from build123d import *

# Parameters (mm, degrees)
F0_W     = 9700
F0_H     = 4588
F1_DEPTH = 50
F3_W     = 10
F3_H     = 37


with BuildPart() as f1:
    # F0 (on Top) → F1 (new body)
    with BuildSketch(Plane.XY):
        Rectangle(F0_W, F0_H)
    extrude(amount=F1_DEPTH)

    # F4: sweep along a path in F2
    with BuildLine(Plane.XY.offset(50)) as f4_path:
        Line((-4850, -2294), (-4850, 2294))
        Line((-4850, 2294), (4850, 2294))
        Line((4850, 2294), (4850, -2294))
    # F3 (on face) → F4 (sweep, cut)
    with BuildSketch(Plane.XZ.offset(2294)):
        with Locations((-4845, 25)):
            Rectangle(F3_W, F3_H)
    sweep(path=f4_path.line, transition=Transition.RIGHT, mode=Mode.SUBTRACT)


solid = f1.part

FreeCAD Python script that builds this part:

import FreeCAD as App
import Part
import Sketcher

V = App.Vector
Q = App.Units.Quantity


def add_polygon(sketch, points):
    """Adds a closed chain of lines whose ends are joined by coincident constraints."""
    first, n = sketch.GeometryCount, len(points)
    for a, b in zip(points, points[1:] + points[:1]):
        sketch.addGeometry(Part.LineSegment(App.Vector(*a, 0), App.Vector(*b, 0)), False)
    for i in range(n):
        sketch.addConstraint(Sketcher.Constraint("Coincident", first + i, 2, first + (i + 1) % n, 1))

doc = App.newDocument("Part")
params = doc.addObject("Spreadsheet::Sheet", "Params")
for row, (alias, value) in enumerate([
    ("sketch1_width", "9700 mm"),
    ("sketch1_height", "4588 mm"),
    ("pad1_length", "50 mm"),
    ("sketch2_width", "10 mm"),
    ("sketch2_height", "37 mm"),
    ("sketch3_width", "9700 mm"),
    ("sketch3_height", "4588 mm"),
], start=1):
    params.set(f"A{row}", alias)
    params.set(f"B{row}", "=" + value)
    params.setAlias(f"B{row}", alias)

body = doc.addObject("PartDesign::Body", "Body")

sketch1 = body.newObject("Sketcher::SketchObject", "Sketch")
sketch1.AttachmentSupport = (doc.getObject("XY_Plane"), [""])
sketch1.MapMode = "FlatFace"
add_polygon(sketch1, [(-4850, 2294), (-4850, -2294), (4850, -2294), (4850, 2294)])
sketch1.addConstraint(Sketcher.Constraint("Vertical", 0))
sketch1.addConstraint(Sketcher.Constraint("Horizontal", 1))
sketch1.addConstraint(Sketcher.Constraint("Vertical", 2))
sketch1.addConstraint(Sketcher.Constraint("Horizontal", 3))
sketch1.addConstraint(Sketcher.Constraint("Symmetric", 0, 2, 2, 2, -1, 1))
sketch1.addConstraint(Sketcher.Constraint("DistanceX", 1, 1, 1, 2, Q("9700 mm")))
sketch1.addConstraint(Sketcher.Constraint("DistanceY", 0, 2, 0, 1, Q("4588 mm")))
sketch1.setExpression("Constraints[9]", "Params.sketch1_width")
sketch1.setExpression("Constraints[10]", "Params.sketch1_height")
pad1 = body.newObject("PartDesign::Pad", "Pad")
pad1.Profile = sketch1
pad1.setExpression("Length", "Params.pad1_length")

sketch2 = body.newObject("Sketcher::SketchObject", "Sketch001")
sketch2.AttachmentSupport = (doc.getObject("XZ_Plane"), [""])
sketch2.MapMode = "FlatFace"
sketch2.AttachmentOffset = App.Placement(V(0, 0, 2294), App.Rotation())
add_polygon(sketch2, [(-4850, 44), (-4850, 6), (-4840, 6), (-4840, 44)])
sketch2.addConstraint(Sketcher.Constraint("Vertical", 0))
sketch2.addConstraint(Sketcher.Constraint("Horizontal", 1))
sketch2.addConstraint(Sketcher.Constraint("Vertical", 2))
sketch2.addConstraint(Sketcher.Constraint("Horizontal", 3))
sketch2.addConstraint(Sketcher.Constraint("DistanceX", 1, 1, 1, 2, Q("10 mm")))
sketch2.addConstraint(Sketcher.Constraint("DistanceY", 0, 2, 0, 1, Q("37 mm")))
sketch2.addConstraint(Sketcher.Constraint("DistanceX", 0, 2, -1, 1, Q("4850 mm")))
sketch2.addConstraint(Sketcher.Constraint("DistanceY", -1, 1, 0, 2, Q("6.5 mm")))
sketch2.setExpression("Constraints[8]", "Params.sketch2_width")
sketch2.setExpression("Constraints[9]", "Params.sketch2_height")

sketch3 = body.newObject("Sketcher::SketchObject", "Sketch002")
sketch3.AttachmentSupport = (doc.getObject("XY_Plane"), [""])
sketch3.MapMode = "FlatFace"
sketch3.AttachmentOffset = App.Placement(V(0, 0, 50), App.Rotation())
sketch3.addGeometry(Part.LineSegment(V(-4850, -2294, 0), V(-4850, 2294, 0)), False)
sketch3.addGeometry(Part.LineSegment(V(-4850, 2294, 0), V(4850, 2294, 0)), False)
sketch3.addGeometry(Part.LineSegment(V(4850, 2294, 0), V(4850, -2294, 0)), False)
sketch3.addConstraint(Sketcher.Constraint("Coincident", 0, 2, 1, 1))
sketch3.addConstraint(Sketcher.Constraint("Coincident", 1, 2, 2, 1))
sketch3.addConstraint(Sketcher.Constraint("Vertical", 0))
sketch3.addConstraint(Sketcher.Constraint("Horizontal", 1))
sketch3.addConstraint(Sketcher.Constraint("Vertical", 2))
sketch3.addConstraint(Sketcher.Constraint("Symmetric", 0, 1, 1, 2, -1, 1))
sketch3.addConstraint(Sketcher.Constraint("Horizontal", 0, 1, 2, 2))
sketch3.addConstraint(Sketcher.Constraint("DistanceX", 1, 1, 1, 2, Q("9700 mm")))
sketch3.addConstraint(Sketcher.Constraint("DistanceY", 0, 1, 0, 2, Q("4588 mm")))
sketch3.setExpression("Constraints[7]", "Params.sketch3_width")
sketch3.setExpression("Constraints[8]", "Params.sketch3_height")
doc.recompute()

subtractivepipe = body.newObject("PartDesign::SubtractivePipe", "SubtractivePipe")
subtractivepipe.Profile = sketch2
subtractivepipe.Spine = (sketch3, ["Edge1", "Edge2", "Edge3"])
subtractivepipe.Transition = "Right corner"

doc.recompute()
